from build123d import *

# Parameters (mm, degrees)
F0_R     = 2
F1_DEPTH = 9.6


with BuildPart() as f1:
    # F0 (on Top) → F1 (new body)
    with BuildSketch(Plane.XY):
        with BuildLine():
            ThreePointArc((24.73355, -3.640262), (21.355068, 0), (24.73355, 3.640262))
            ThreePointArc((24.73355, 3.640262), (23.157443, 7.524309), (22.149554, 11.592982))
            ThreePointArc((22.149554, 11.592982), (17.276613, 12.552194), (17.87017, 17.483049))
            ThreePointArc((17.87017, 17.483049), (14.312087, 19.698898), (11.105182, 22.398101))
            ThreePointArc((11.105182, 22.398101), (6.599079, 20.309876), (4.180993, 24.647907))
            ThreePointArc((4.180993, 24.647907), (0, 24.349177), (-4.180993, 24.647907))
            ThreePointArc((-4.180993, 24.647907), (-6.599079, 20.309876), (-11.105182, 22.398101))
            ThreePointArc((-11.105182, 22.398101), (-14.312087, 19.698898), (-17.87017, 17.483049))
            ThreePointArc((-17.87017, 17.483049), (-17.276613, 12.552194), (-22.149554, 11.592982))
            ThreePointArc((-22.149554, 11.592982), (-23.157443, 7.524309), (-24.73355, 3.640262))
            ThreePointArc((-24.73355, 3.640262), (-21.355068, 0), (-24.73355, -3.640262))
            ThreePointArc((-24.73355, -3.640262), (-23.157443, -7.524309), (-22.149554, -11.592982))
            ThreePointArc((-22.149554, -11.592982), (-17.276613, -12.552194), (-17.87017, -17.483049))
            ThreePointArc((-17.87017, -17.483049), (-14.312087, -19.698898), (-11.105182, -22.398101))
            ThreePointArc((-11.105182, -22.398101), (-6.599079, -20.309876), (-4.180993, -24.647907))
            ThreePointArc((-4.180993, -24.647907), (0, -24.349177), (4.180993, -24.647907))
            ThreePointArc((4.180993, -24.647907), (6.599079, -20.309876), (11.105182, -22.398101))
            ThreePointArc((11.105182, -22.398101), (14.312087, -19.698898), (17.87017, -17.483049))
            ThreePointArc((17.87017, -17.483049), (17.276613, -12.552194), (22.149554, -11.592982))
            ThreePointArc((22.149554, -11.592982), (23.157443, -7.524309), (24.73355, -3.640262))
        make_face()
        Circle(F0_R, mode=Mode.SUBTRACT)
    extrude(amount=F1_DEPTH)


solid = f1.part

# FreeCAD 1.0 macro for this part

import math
import FreeCAD as App
import Part
import Sketcher
Q = App.Units.Quantity

doc = App.newDocument("Part")
body = doc.addObject("PartDesign::Body", "Body")

sketch1 = doc.addObject("Sketcher::SketchObject", "Sketch")
body.addObject(sketch1)
sketch1.AttachmentSupport = (doc.XY_Plane, [""])
sketch1.MapMode = "FlatFace"
sketch1.addGeometry(Part.ArcOfCircle(Part.Circle(App.Vector(25, 0, 0), App.Vector(0, 0, 1), 3.7), math.radians(94), math.radians(266)), False)
sketch1.addGeometry(Part.ArcOfCircle(Part.Circle(App.Vector(51.1, 16.6, 0), App.Vector(0, 0, 1), 29.4), math.radians(-170.17), math.radians(-153.83)), False)
sketch1.addGeometry(Part.ArcOfCircle(Part.Circle(App.Vector(20.2, 14.7, 0), App.Vector(0, 0, 1), 3.7), math.radians(130), math.radians(302)), False)
sketch1.addGeometry(Part.ArcOfCircle(Part.Circle(App.Vector(31.6, 43.5, 0), App.Vector(0, 0, 1), 29.4), math.radians(-134.17), math.radians(-117.83)), False)
sketch1.addGeometry(Part.ArcOfCircle(Part.Circle(App.Vector(7.7, 23.8, 0), App.Vector(0, 0, 1), 3.7), math.radians(166), math.radians(338)), False)
sketch1.addGeometry(Part.ArcOfCircle(Part.Circle(App.Vector(0, 53.8, 0), App.Vector(0, 0, 1), 29.4), math.radians(-98.17), math.radians(-81.83)), False)
sketch1.addGeometry(Part.ArcOfCircle(Part.Circle(App.Vector(-7.7, 23.8, 0), App.Vector(0, 0, 1), 3.7), math.radians(-158), math.radians(14)), False)
sketch1.addGeometry(Part.ArcOfCircle(Part.Circle(App.Vector(-31.6, 43.5, 0), App.Vector(0, 0, 1), 29.4), math.radians(-62.17), math.radians(-45.83)), False)
sketch1.addGeometry(Part.ArcOfCircle(Part.Circle(App.Vector(-20.2, 14.7, 0), App.Vector(0, 0, 1), 3.7), math.radians(-122), math.radians(50)), False)
sketch1.addGeometry(Part.ArcOfCircle(Part.Circle(App.Vector(-51.1, 16.6, 0), App.Vector(0, 0, 1), 29.4), math.radians(-26.17), math.radians(-9.83)), False)
sketch1.addGeometry(Part.ArcOfCircle(Part.Circle(App.Vector(-25, 0, 0), App.Vector(0, 0, 1), 3.7), math.radians(-86), math.radians(86)), False)
sketch1.addGeometry(Part.ArcOfCircle(Part.Circle(App.Vector(-51.1, -16.6, 0), App.Vector(0, 0, 1), 29.4), math.radians(9.83), math.radians(26.17)), False)
sketch1.addGeometry(Part.ArcOfCircle(Part.Circle(App.Vector(-20.2, -14.7, 0), App.Vector(0, 0, 1), 3.7), math.radians(-50), math.radians(122)), False)
sketch1.addGeometry(Part.ArcOfCircle(Part.Circle(App.Vector(-31.6, -43.5, 0), App.Vector(0, 0, 1), 29.4), math.radians(45.83), math.radians(62.17)), False)
sketch1.addGeometry(Part.ArcOfCircle(Part.Circle(App.Vector(-7.7, -23.8, 0), App.Vector(0, 0, 1), 3.7), math.radians(-14), math.radians(158)), False)
sketch1.addGeometry(Part.ArcOfCircle(Part.Circle(App.Vector(0, -53.8, 0), App.Vector(0, 0, 1), 29.4), math.radians(81.83), math.radians(98.17)), False)
sketch1.addGeometry(Part.ArcOfCircle(Part.Circle(App.Vector(7.7, -23.8, 0), App.Vector(0, 0, 1), 3.7), math.radians(22), math.radians(194)), False)
sketch1.addGeometry(Part.ArcOfCircle(Part.Circle(App.Vector(31.6, -43.5, 0), App.Vector(0, 0, 1), 29.4), math.radians(117.83), math.radians(134.17)), False)
sketch1.addGeometry(Part.ArcOfCircle(Part.Circle(App.Vector(20.2, -14.7, 0), App.Vector(0, 0, 1), 3.7), math.radians(58), math.radians(230)), False)
sketch1.addGeometry(Part.ArcOfCircle(Part.Circle(App.Vector(51.1, -16.6, 0), App.Vector(0, 0, 1), 29.4), math.radians(153.83), math.radians(170.17)), False)
sketch1.addGeometry(Part.Circle(App.Vector(0, 0, 0), App.Vector(0, 0, 1), 2), False)
sketch1.addConstraint(Sketcher.Constraint("Coincident", 0, 1, 1, 2))
sketch1.addConstraint(Sketcher.Constraint("Coincident", 1, 1, 2, 2))
sketch1.addConstraint(Sketcher.Constraint("Coincident", 2, 1, 3, 2))
sketch1.addConstraint(Sketcher.Constraint("Coincident", 3, 1, 4, 2))
sketch1.addConstraint(Sketcher.Constraint("Coincident", 4, 1, 5, 2))
sketch1.addConstraint(Sketcher.Constraint("Coincident", 5, 1, 6, 2))
sketch1.addConstraint(Sketcher.Constraint("Coincident", 6, 1, 7, 2))
sketch1.addConstraint(Sketcher.Constraint("Coincident", 7, 1, 8, 2))
sketch1.addConstraint(Sketcher.Constraint("Coincident", 8, 1, 9, 2))
sketch1.addConstraint(Sketcher.Constraint("Coincident", 9, 1, 10, 2))
sketch1.addConstraint(Sketcher.Constraint("Coincident", 10, 1, 11, 2))
sketch1.addConstraint(Sketcher.Constraint("Coincident", 11, 1, 12, 2))
sketch1.addConstraint(Sketcher.Constraint("Coincident", 12, 1, 13, 2))
sketch1.addConstraint(Sketcher.Constraint("Coincident", 13, 1, 14, 2))
sketch1.addConstraint(Sketcher.Constraint("Coincident", 14, 1, 15, 2))
sketch1.addConstraint(Sketcher.Constraint("Coincident", 15, 1, 16, 2))
sketch1.addConstraint(Sketcher.Constraint("Coincident", 16, 1, 17, 2))
sketch1.addConstraint(Sketcher.Constraint("Coincident", 17, 1, 18, 2))
sketch1.addConstraint(Sketcher.Constraint("Coincident", 18, 1, 19, 2))
sketch1.addConstraint(Sketcher.Constraint("Coincident", 19, 1, 0, 2))
sketch1.addConstraint(Sketcher.Constraint("Coincident", 20, 3, -1, 1))
sketch1.addConstraint(Sketcher.Constraint("Equal", 0, 2))
sketch1.addConstraint(Sketcher.Constraint("Equal", 2, 4))
sketch1.addConstraint(Sketcher.Constraint("Equal", 4, 6))
sketch1.addConstraint(Sketcher.Constraint("Equal", 3, 7))
sketch1.addConstraint(Sketcher.Constraint("Equal", 6, 8))
sketch1.addConstraint(Sketcher.Constraint("Equal", 1, 9))
sketch1.addConstraint(Sketcher.Constraint("Equal", 8, 10))
sketch1.addConstraint(Sketcher.Constraint("Equal", 9, 11))
sketch1.addConstraint(Sketcher.Constraint("Equal", 10, 12))
sketch1.addConstraint(Sketcher.Constraint("Equal", 7, 13))
sketch1.addConstraint(Sketcher.Constraint("Equal", 12, 14))
sketch1.addConstraint(Sketcher.Constraint("Equal", 5, 15))
sketch1.addConstraint(Sketcher.Constraint("Equal", 14, 16))
sketch1.addConstraint(Sketcher.Constraint("Equal", 13, 17))
sketch1.addConstraint(Sketcher.Constraint("Equal", 16, 18))
sketch1.addConstraint(Sketcher.Constraint("Equal", 11, 19))
sketch1.addConstraint(Sketcher.Constraint("Symmetric", 0, 3, 10, 3, -1, 1))
sketch1.addConstraint(Sketcher.Constraint("Symmetric", 1, 3, 11, 3, -1, 1))
sketch1.addConstraint(Sketcher.Constraint("Symmetric", 2, 3, 12, 3, -1, 1))
sketch1.addConstraint(Sketcher.Constraint("Symmetric", 3, 3, 13, 3, -1, 1))
sketch1.addConstraint(Sketcher.Constraint("Symmetric", 4, 3, 14, 3, -1, 1))
sketch1.addConstraint(Sketcher.Constraint("Symmetric", 5, 3, 15, 3, -1, 1))
sketch1.addConstraint(Sketcher.Constraint("Symmetric", 6, 3, 16, 3, -1, 1))
sketch1.addConstraint(Sketcher.Constraint("Symmetric", 7, 3, 17, 3, -1, 1))
sketch1.addConstraint(Sketcher.Constraint("Symmetric", 8, 3, 18, 3, -1, 1))
sketch1.addConstraint(Sketcher.Constraint("Symmetric", 9, 3, 19, 3, -1, 1))
sketch1.addConstraint(Sketcher.Constraint("Symmetric", 4, 3, 6, 3, -2))
sketch1.addConstraint(Sketcher.Constraint("Symmetric", 3, 3, 7, 3, -2))
sketch1.addConstraint(Sketcher.Constraint("Symmetric", 2, 3, 8, 3, -2))
sketch1.addConstraint(Sketcher.Constraint("Symmetric", 1, 3, 9, 3, -2))
sketch1.addConstraint(Sketcher.Constraint("PointOnObject", 0, 3, -1))
sketch1.addConstraint(Sketcher.Constraint("PointOnObject", 5, 3, -2))
sketch1.addConstraint(Sketcher.Constraint("Diameter", 20, Q("4 mm")))
sketch1.addConstraint(Sketcher.Constraint("Radius", 1, Q("29.407721 mm")))
sketch1.addConstraint(Sketcher.Constraint("Radius", 3, Q("29.407781 mm")))
sketch1.addConstraint(Sketcher.Constraint("Radius", 5, Q("29.40773 mm")))
sketch1.addConstraint(Sketcher.Constraint("Radius", 0, Q("3.650404 mm")))
sketch1.addConstraint(Sketcher.Constraint("DistanceY", -1, 1, 3, 1, Q("22.398101 mm")))
sketch1.addConstraint(Sketcher.Constraint("DistanceX", 3, 3, 1, 3, Q("19.528299 mm")))
sketch1.addConstraint(Sketcher.Constraint("DistanceX", 7, 3, 2, 3, Q("51.8274 mm")))
sketch1.addConstraint(Sketcher.Constraint("DistanceX", 2, 3, 0, 1, Q("4.503698 mm")))
sketch1.addConstraint(Sketcher.Constraint("DistanceY", 2, 3, 2, 1, Q("2.785202 mm")))
sketch1.addConstraint(Sketcher.Constraint("DistanceX", 2, 1, 0, 3, Q("7.135302 mm")))
sketch1.addConstraint(Sketcher.Constraint("DistanceX", -1, 1, 0, 3, Q("25.005472 mm")))
sketch1.addConstraint(Sketcher.Constraint("DistanceY", -1, 1, 3, 3, Q("43.490292 mm")))
sketch1.addConstraint(Sketcher.Constraint("DistanceY", 2, 3, 4, 3, Q("9.083769 mm")))
sketch1.addConstraint(Sketcher.Constraint("DistanceY", 4, 3, 5, 3, Q("29.97529 mm")))
pad1 = doc.addObject("PartDesign::Pad", "Pad")
body.addObject(pad1)
pad1.Profile = sketch1
pad1.Length = 9.6

doc.recompute()
